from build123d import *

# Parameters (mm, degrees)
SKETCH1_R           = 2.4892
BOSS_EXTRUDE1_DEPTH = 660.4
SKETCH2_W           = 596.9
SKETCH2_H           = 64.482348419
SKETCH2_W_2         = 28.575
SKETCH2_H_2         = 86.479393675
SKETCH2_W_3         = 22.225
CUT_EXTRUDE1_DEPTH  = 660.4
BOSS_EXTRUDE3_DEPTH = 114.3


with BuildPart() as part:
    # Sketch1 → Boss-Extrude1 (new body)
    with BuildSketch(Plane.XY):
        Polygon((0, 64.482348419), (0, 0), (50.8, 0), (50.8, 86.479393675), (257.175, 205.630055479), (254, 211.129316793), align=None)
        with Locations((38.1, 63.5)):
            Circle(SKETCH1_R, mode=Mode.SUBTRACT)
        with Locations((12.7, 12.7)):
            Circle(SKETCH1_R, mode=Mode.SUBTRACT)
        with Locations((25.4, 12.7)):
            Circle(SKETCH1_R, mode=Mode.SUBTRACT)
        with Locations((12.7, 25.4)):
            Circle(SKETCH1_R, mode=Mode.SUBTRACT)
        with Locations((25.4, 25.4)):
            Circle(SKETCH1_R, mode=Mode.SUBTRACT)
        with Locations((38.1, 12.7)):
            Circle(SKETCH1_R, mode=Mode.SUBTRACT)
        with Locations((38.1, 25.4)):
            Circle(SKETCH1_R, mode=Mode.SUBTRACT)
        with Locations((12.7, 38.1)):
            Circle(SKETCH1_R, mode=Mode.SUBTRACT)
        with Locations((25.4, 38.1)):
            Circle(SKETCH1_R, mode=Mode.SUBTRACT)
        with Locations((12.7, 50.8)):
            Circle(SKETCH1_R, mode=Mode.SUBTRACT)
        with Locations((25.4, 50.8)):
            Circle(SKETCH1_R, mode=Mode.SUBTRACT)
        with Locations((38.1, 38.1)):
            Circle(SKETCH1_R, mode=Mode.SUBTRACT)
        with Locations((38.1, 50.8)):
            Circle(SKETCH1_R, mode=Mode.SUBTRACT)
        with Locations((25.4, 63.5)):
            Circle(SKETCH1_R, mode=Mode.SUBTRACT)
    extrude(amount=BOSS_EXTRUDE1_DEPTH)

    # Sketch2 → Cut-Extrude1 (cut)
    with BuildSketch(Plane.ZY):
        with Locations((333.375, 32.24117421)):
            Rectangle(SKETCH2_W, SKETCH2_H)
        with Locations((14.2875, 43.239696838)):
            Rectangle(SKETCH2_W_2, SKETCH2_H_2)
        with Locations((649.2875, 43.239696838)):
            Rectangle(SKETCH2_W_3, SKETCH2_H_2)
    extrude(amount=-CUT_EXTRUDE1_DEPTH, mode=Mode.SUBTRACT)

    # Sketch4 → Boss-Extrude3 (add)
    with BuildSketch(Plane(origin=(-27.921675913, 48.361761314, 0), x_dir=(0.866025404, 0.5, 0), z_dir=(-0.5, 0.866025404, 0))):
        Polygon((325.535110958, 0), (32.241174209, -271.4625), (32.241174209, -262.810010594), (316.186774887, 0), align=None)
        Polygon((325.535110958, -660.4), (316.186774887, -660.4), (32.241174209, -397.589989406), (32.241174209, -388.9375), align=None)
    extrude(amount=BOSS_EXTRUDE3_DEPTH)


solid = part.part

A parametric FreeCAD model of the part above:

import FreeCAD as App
import Part
import Sketcher
from FreeCAD import Vector
Q = App.Units.Quantity


def add_polygon(sketch, points):
    """Adds a closed chain of lines whose ends are joined by coincident constraints."""
    first, n = sketch.GeometryCount, len(points)
    for a, b in zip(points, points[1:] + points[:1]):
        sketch.addGeometry(Part.LineSegment(App.Vector(*a, 0), App.Vector(*b, 0)), False)
    for i in range(n):
        sketch.addConstraint(Sketcher.Constraint("Coincident", first + i, 2, first + (i + 1) % n, 1))

doc = App.newDocument("Part")
params = doc.addObject("Spreadsheet::Sheet", "Params")
for row, (alias, value) in enumerate([
    ("sketch1_width", "2 in"),
    ("sketch1_diameter", "0.196 in"),
    ("sketch1_length", "0.25 in"),
    ("pad1_length", "26 in"),
    ("sketch2_height", "23.5 in"),
    ("sketch2_height2", "1.125 in"),
    ("pocket1_length", "26 in"),
    ("pad2_length", "4.5 in"),
], start=1):
    params.set(f"A{row}", alias)
    params.set(f"B{row}", "=" + value)
    params.setAlias(f"B{row}", alias)

body = doc.addObject("PartDesign::Body", "Body")

# Sketch on XY plane
sketch1 = body.newObject("Sketcher::SketchObject", "Sketch")
sketch1.AttachmentSupport = (doc.getObject("XY_Plane"), [""])
sketch1.MapMode = "FlatFace"
add_polygon(sketch1, [(0, 64.5), (0, 0), (50.8, 0), (50.8, 86.5), (257.2, 205.6), (254, 211.1)])  # lines 0-5
sketch1.addGeometry(Part.Circle(Vector(12.7, 12.7, 0), Vector(0, 0, 1), 2.5), False)  # 6
sketch1.addGeometry(Part.Circle(Vector(12.7, 25.4, 0), Vector(0, 0, 1), 2.5), False)  # 7
sketch1.addGeometry(Part.Circle(Vector(12.7, 38.1, 0), Vector(0, 0, 1), 2.5), False)  # 8
sketch1.addGeometry(Part.Circle(Vector(25.4, 12.7, 0), Vector(0, 0, 1), 2.5), False)  # 9
sketch1.addGeometry(Part.Circle(Vector(38.1, 12.7, 0), Vector(0, 0, 1), 2.5), False)  # 10
sketch1.addGeometry(Part.Circle(Vector(25.4, 25.4, 0), Vector(0, 0, 1), 2.5), False)  # 11
sketch1.addGeometry(Part.Circle(Vector(25.4, 38.1, 0), Vector(0, 0, 1), 2.5), False)  # 12
sketch1.addGeometry(Part.Circle(Vector(38.1, 25.4, 0), Vector(0, 0, 1), 2.5), False)  # 13
sketch1.addGeometry(Part.Circle(Vector(38.1, 38.1, 0), Vector(0, 0, 1), 2.5), False)  # 14
sketch1.addGeometry(Part.Circle(Vector(12.7, 50.8, 0), Vector(0, 0, 1), 2.5), False)  # 15
sketch1.addGeometry(Part.Circle(Vector(25.4, 50.8, 0), Vector(0, 0, 1), 2.5), False)  # 16
sketch1.addGeometry(Part.Circle(Vector(38.1, 50.8, 0), Vector(0, 0, 1), 2.5), False)  # 17
sketch1.addGeometry(Part.Circle(Vector(25.4, 63.5, 0), Vector(0, 0, 1), 2.5), False)  # 18
sketch1.addGeometry(Part.Circle(Vector(38.1, 63.5, 0), Vector(0, 0, 1), 2.5), False)  # 19
sketch1.addConstraint([
    Sketcher.Constraint("Vertical", 0),
    Sketcher.Constraint("Horizontal", 1),
    Sketcher.Constraint("Vertical", 2),
    Sketcher.Constraint("Coincident", 0, 2, -1, 1),
    Sketcher.Constraint("Equal", 6, 7),
    Sketcher.Constraint("Equal", 7, 8),
    Sketcher.Constraint("Equal", 8, 9),
    Sketcher.Constraint("Equal", 9, 10),
    Sketcher.Constraint("Equal", 10, 11),
    Sketcher.Constraint("Equal", 11, 12),
    Sketcher.Constraint("Equal", 12, 13),
    Sketcher.Constraint("Equal", 13, 14),
    Sketcher.Constraint("Equal", 14, 15),
    Sketcher.Constraint("Equal", 15, 16),
    Sketcher.Constraint("Equal", 16, 17),
    Sketcher.Constraint("Equal", 17, 18),
    Sketcher.Constraint("Equal", 18, 19),
    Sketcher.Constraint("Perpendicular", 3, 4),
    Sketcher.Constraint("Perpendicular", 4, 5),
    Sketcher.Constraint("Horizontal", 6, 3, 9, 3),
    Sketcher.Constraint("Horizontal", 9, 3, 10, 3),
    Sketcher.Constraint("Horizontal", 7, 3, 11, 3),
    Sketcher.Constraint("Horizontal", 8, 3, 12, 3),
    Sketcher.Constraint("Horizontal", 11, 3, 13, 3),
    Sketcher.Constraint("Horizontal", 12, 3, 14, 3),
    Sketcher.Constraint("Horizontal", 15, 3, 16, 3),
    Sketcher.Constraint("Horizontal", 16, 3, 17, 3),
    Sketcher.Constraint("Horizontal", 18, 3, 19, 3),
    Sketcher.Constraint("Vertical", 6, 3, 7, 3),
    Sketcher.Constraint("Vertical", 7, 3, 8, 3),
    Sketcher.Constraint("Vertical", 9, 3, 11, 3),
    Sketcher.Constraint("Vertical", 11, 3, 12, 3),
    Sketcher.Constraint("Vertical", 10, 3, 13, 3),
    Sketcher.Constraint("Vertical", 13, 3, 14, 3),
    Sketcher.Constraint("Vertical", 8, 3, 15, 3),
    Sketcher.Constraint("Vertical", 12, 3, 16, 3),
    Sketcher.Constraint("Vertical", 14, 3, 17, 3),
    Sketcher.Constraint("Vertical", 16, 3, 18, 3),
    Sketcher.Constraint("Vertical", 17, 3, 19, 3),
    Sketcher.Constraint("DistanceX", 1, 1, 1, 2, Q("2 in")),
    Sketcher.Constraint("Diameter", 6, Q("0.196 in")),
    Sketcher.Constraint("DistanceY", -1, 1, 7, 3, Q("1 in")),
    Sketcher.Constraint("DistanceX", -1, 1, 9, 3, Q("1 in")),
    Sketcher.Constraint("DistanceY", -1, 1, 15, 3, Q("2 in")),
    Sketcher.Constraint("DistanceX", -1, 1, 4, 2, Q("10 in")),
    Sketcher.Constraint("Angle", 3, Q("30 deg")),
    Sketcher.Constraint("DistanceY", 6, 3, 8, 3, Q("1 in")),
    Sketcher.Constraint("DistanceX", 6, 3, 10, 3, Q("1 in")),
    Sketcher.Constraint("DistanceY", 12, 3, 18, 3, Q("1 in")),
    Sketcher.Constraint("DistanceX", -1, 1, 6, 3, Q("0.5 in")),
    Sketcher.Constraint("DistanceY", -1, 1, 6, 3, Q("0.5 in")),
    Sketcher.Constraint("Distance", 4, Q("0.25 in")),
    Sketcher.Constraint("DistanceY", 0, 2, 0, 1, 64.482348),
])
sketch1.setExpression("Constraints[45]", "Params.sketch1_width")
sketch1.setExpression("Constraints[46]", "Params.sketch1_diameter")
sketch1.setExpression("Constraints[57]", "Params.sketch1_length")
pad1 = body.newObject("PartDesign::Pad", "Pad")
pad1.Profile = sketch1
pad1.setExpression("Length", "Params.pad1_length")

# Sketch on YZ plane
sketch2 = body.newObject("Sketcher::SketchObject", "Sketch001")
sketch2.AttachmentSupport = (doc.getObject("YZ_Plane"), [""])
sketch2.MapMode = "FlatFace"
add_polygon(sketch2, [(64, 35), (0, 35), (0, 632), (64, 632)])  # lines 0-3
add_polygon(sketch2, [(86, 0), (0, 0), (0, 29), (86, 29)])  # lines 4-7
add_polygon(sketch2, [(86, 638), (0, 638), (0, 660), (86, 660)])  # lines 8-11
sketch2.addConstraint([
    Sketcher.Constraint("Horizontal", 0),
    Sketcher.Constraint("Vertical", 1),
    Sketcher.Constraint("Horizontal", 2),
    Sketcher.Constraint("Vertical", 3),
    Sketcher.Constraint("Horizontal", 4),
    Sketcher.Constraint("Vertical", 5),
    Sketcher.Constraint("Horizontal", 6),
    Sketcher.Constraint("Vertical", 7),
    Sketcher.Constraint("Horizontal", 8),
    Sketcher.Constraint("Vertical", 9),
    Sketcher.Constraint("Horizontal", 10),
    Sketcher.Constraint("Vertical", 11),
    Sketcher.Constraint("Coincident", 4, 2, -1, 1),
    Sketcher.Constraint("PointOnObject", 0, 2, -2),
    Sketcher.Constraint("PointOnObject", 8, 2, -2),
    Sketcher.Constraint("Vertical", 7, 2, 10, 2),
    Sketcher.Constraint("DistanceY", 1, 1, 1, 2, Q("23.5 in")),
    Sketcher.Constraint("DistanceY", -1, 1, 9, 2, Q("26 in")),
    Sketcher.Constraint("DistanceY", 5, 2, 8, 2, Q("24 in")),
    Sketcher.Constraint("DistanceY", 5, 1, 5, 2, Q("1.125 in")),
    Sketcher.Constraint("DistanceY", 5, 2, 0, 2, Q("0.25 in")),
    Sketcher.Constraint("DistanceX", 0, 2, 0, 1, 64.482348),
    Sketcher.Constraint("DistanceX", 4, 2, 4, 1, 86.479394),
])
sketch2.setExpression("Constraints[28]", "Params.sketch2_height")
sketch2.setExpression("Constraints[31]", "Params.sketch2_height2")
pocket1 = body.newObject("PartDesign::Pocket", "Pocket")
pocket1.Profile = sketch2
pocket1.setExpression("Length", "Params.pocket1_length")
pocket1.Reversed = True

# Sketch on an angled plane
sketch3 = body.newObject("Sketcher::SketchObject", "Sketch002")
sketch3.Placement = App.Placement(Vector(-27.921676, 48.361761, 0), App.Rotation(Vector(0.866025404, 0.5, 0), Vector(0, 0, -1), Vector(-0.5, 0.866025404, 0), "ZXY"))
add_polygon(sketch3, [(32, -271), (326, 0), (316, 0), (32, -263)])  # lines 0-3
add_polygon(sketch3, [(316, -660), (326, -660), (32, -389), (32, -398)])  # lines 4-7
sketch3.addConstraint([
    Sketcher.Constraint("Horizontal", 1),
    Sketcher.Constraint("Vertical", 3),
    Sketcher.Constraint("Horizontal", 4),
    Sketcher.Constraint("Vertical", 6),
    Sketcher.Constraint("PointOnObject", 0, 2, -1),
    Sketcher.Constraint("Parallel", 0, 2),
    Sketcher.Constraint("Parallel", 5, 7),
    Sketcher.Constraint("Vertical", 0, 2, 4, 2),
    Sketcher.Constraint("Vertical", 3, 2, 5, 2),
    Sketcher.Constraint("Vertical", 1, 2, 7, 2),
    Sketcher.Constraint("Equal", 3, 6),
    Sketcher.Constraint("DistanceY", 4, 2, -1, 1, Q("26 in")),
    Sketcher.Constraint("DistanceY", 3, 2, -1, 1, Q("10.6875 in")),
    Sketcher.Constraint("DistanceY", 3, 2, 3, 1, 8.652489),
    Sketcher.Constraint("DistanceX", 2, 2, 1, 2, 283.945601),
    Sketcher.Constraint("DistanceX", -1, 1, 0, 2, 325.535111),
])
pad2 = body.newObject("PartDesign::Pad", "Pad001")
pad2.Profile = sketch3
pad2.setExpression("Length", "Params.pad2_length")

doc.recompute()
